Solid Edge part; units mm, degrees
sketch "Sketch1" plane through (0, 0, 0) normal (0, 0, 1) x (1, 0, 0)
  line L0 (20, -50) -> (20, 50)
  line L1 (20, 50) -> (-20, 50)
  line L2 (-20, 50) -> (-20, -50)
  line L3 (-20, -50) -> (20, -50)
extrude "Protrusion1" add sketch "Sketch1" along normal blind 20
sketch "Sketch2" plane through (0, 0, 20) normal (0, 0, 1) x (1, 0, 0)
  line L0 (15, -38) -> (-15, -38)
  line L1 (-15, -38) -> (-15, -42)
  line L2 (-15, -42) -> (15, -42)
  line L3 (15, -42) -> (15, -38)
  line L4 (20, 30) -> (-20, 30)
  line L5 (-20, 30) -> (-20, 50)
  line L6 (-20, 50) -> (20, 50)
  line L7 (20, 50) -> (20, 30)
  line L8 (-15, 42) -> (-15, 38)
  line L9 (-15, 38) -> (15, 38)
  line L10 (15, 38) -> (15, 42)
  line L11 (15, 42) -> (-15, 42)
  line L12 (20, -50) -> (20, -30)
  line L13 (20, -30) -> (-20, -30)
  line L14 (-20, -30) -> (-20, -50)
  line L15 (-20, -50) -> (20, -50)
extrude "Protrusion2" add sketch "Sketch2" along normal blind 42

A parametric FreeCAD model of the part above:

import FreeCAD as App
import Part
import Sketcher


def add_polygon(sketch, points):
    """Adds a closed chain of lines whose ends are joined by coincident constraints."""
    first, n = sketch.GeometryCount, len(points)
    for a, b in zip(points, points[1:] + points[:1]):
        sketch.addGeometry(Part.LineSegment(App.Vector(*a, 0), App.Vector(*b, 0)), False)
    for i in range(n):
        sketch.addConstraint(Sketcher.Constraint("Coincident", first + i, 2, first + (i + 1) % n, 1))

doc = App.newDocument("Part")
body = doc.addObject("PartDesign::Body", "Body")

sketch1 = body.newObject("Sketcher::SketchObject", "Sketch")
sketch1.AttachmentSupport = (doc.getObject("XY_Plane"), [""])
sketch1.MapMode = "FlatFace"
add_polygon(sketch1, [(-20, -50), (20, -50), (20, 50), (-20, 50)])
sketch1.addConstraint([
    Sketcher.Constraint("Horizontal", 0),
    Sketcher.Constraint("Vertical", 1),
    Sketcher.Constraint("Horizontal", 2),
    Sketcher.Constraint("Vertical", 3),
    Sketcher.Constraint("Symmetric", 0, 2, 2, 2, -1, 1),
    Sketcher.Constraint("DistanceX", 0, 1, 0, 2, 40.0),
    Sketcher.Constraint("DistanceY", 1, 1, 1, 2, 100.0),
])
pad1 = body.newObject("PartDesign::Pad", "Pad")
pad1.Profile = sketch1
pad1.Length = 20

sketch2 = body.newObject("Sketcher::SketchObject", "Sketch001")
sketch2.AttachmentSupport = (doc.getObject("XY_Plane"), [""])
sketch2.MapMode = "FlatFace"
sketch2.AttachmentOffset = App.Placement(App.Vector(0, 0, 20), App.Rotation())
add_polygon(sketch2, [(-20, 30), (20, 30), (20, 50), (-20, 50)])
add_polygon(sketch2, [(-15, 38), (-15, 42), (15, 42), (15, 38)])
add_polygon(sketch2, [(-20, -50), (20, -50), (20, -30), (-20, -30)])
add_polygon(sketch2, [(-15, -38), (15, -38), (15, -42), (-15, -42)])
sketch2.addConstraint([
    Sketcher.Constraint("Horizontal", 0),
    Sketcher.Constraint("Vertical", 1),
    Sketcher.Constraint("Horizontal", 2),
    Sketcher.Constraint("Vertical", 3),
    Sketcher.Constraint("Vertical", 4),
    Sketcher.Constraint("Horizontal", 5),
    Sketcher.Constraint("Vertical", 6),
    Sketcher.Constraint("Horizontal", 7),
    Sketcher.Constraint("Horizontal", 8),
    Sketcher.Constraint("Vertical", 9),
    Sketcher.Constraint("Horizontal", 10),
    Sketcher.Constraint("Vertical", 11),
    Sketcher.Constraint("Horizontal", 12),
    Sketcher.Constraint("Vertical", 13),
    Sketcher.Constraint("Horizontal", 14),
    Sketcher.Constraint("Vertical", 15),
    Sketcher.Constraint("Symmetric", 2, 2, 8, 2, -1, 1),
    Sketcher.Constraint("Symmetric", 0, 2, 10, 2, -1, 1),
    Sketcher.Constraint("Symmetric", 7, 2, 12, 2, -1, 1),
    Sketcher.Constraint("Symmetric", 5, 2, 14, 2, -1, 1),
    Sketcher.Constraint("Vertical", 1, 2, 8, 2),
    Sketcher.Constraint("Vertical", 6, 2, 12, 2),
    Sketcher.Constraint("DistanceX", 0, 1, 0, 2, 40.0),
    Sketcher.Constraint("DistanceX", 5, 1, 5, 2, 30.0),
    Sketcher.Constraint("DistanceY", 1, 1, 1, 2, 20.0),
    Sketcher.Constraint("DistanceY", 4, 1, 4, 2, 4.0),
    Sketcher.Constraint("DistanceY", -1, 1, 0, 2, 30.0),
    Sketcher.Constraint("DistanceY", -1, 1, 4, 2, 42.0),
])
pad2 = body.newObject("PartDesign::Pad", "Pad001")
pad2.Profile = sketch2
pad2.Length = 42

doc.recompute()
